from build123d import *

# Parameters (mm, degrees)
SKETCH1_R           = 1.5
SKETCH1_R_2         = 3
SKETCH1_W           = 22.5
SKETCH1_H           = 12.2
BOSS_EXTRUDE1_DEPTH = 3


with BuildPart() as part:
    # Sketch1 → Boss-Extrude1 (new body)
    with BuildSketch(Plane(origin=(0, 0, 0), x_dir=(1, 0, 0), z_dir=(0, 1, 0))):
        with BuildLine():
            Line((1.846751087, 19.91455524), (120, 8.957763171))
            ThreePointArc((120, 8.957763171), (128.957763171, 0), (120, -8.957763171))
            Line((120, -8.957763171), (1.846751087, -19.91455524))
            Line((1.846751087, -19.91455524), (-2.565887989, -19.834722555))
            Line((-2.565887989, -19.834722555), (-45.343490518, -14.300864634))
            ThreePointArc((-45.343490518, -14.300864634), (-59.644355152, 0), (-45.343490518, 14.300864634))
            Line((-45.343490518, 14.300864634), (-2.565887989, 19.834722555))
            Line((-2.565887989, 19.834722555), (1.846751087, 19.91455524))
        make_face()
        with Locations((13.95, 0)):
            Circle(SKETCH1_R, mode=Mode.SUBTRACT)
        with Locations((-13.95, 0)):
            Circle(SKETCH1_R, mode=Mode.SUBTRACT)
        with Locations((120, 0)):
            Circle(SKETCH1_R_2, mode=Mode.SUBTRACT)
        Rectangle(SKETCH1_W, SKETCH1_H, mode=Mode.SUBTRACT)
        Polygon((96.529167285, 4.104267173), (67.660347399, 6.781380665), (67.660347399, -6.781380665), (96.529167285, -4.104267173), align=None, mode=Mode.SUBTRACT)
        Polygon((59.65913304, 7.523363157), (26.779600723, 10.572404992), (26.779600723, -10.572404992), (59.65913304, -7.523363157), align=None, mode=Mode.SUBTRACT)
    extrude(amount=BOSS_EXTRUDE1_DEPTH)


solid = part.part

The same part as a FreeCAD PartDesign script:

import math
import FreeCAD as App
import Part
import Sketcher
from FreeCAD import Vector

doc = App.newDocument("Part")
body = doc.addObject("PartDesign::Body", "Body")

# Sketch on XZ plane
sketch1 = doc.addObject("Sketcher::SketchObject", "Sketch")
body.addObject(sketch1)
sketch1.AttachmentSupport = (doc.XZ_Plane, [""])
sketch1.MapMode = "FlatFace"
sketch1.addGeometry([
    Part.LineSegment(Vector(120, -9, 0), Vector(1.8, -19.9, 0)),  # 0
    Part.LineSegment(Vector(1.8, -19.9, 0), Vector(-2.6, -19.8, 0)),  # 1
    Part.LineSegment(Vector(-2.6, -19.8, 0), Vector(-45.3, -14.3, 0)),  # 2
    Part.ArcOfCircle(Part.Circle(Vector(-45.3, 0, 0), Vector(0, 0, 1), 14.3), math.radians(90), math.radians(270)),  # 3
    Part.LineSegment(Vector(-45.3, 14.3, 0), Vector(-2.6, 19.8, 0)),  # 4
    Part.LineSegment(Vector(-2.6, 19.8, 0), Vector(1.8, 19.9, 0)),  # 5
    Part.LineSegment(Vector(1.8, 19.9, 0), Vector(120, 9, 0)),  # 6
    Part.ArcOfCircle(Part.Circle(Vector(120, 0, 0), Vector(0, 0, 1), 9), math.radians(-90), math.radians(90)),  # 7
    Part.Circle(Vector(120, 0, 0), Vector(0, 0, 1), 3),  # 8
    Part.LineSegment(Vector(96.5, -4.1, 0), Vector(96.5, 4.1, 0)),  # 9
    Part.LineSegment(Vector(96.5, 4.1, 0), Vector(67.7, 6.8, 0)),  # 10
    Part.LineSegment(Vector(67.7, 6.8, 0), Vector(67.7, -6.8, 0)),  # 11
    Part.LineSegment(Vector(67.7, -6.8, 0), Vector(96.5, -4.1, 0)),  # 12
    Part.LineSegment(Vector(59.7, -7.5, 0), Vector(59.7, 7.5, 0)),  # 13
    Part.LineSegment(Vector(59.7, 7.5, 0), Vector(26.8, 10.6, 0)),  # 14
    Part.LineSegment(Vector(26.8, 10.6, 0), Vector(26.8, -10.6, 0)),  # 15
    Part.LineSegment(Vector(26.8, -10.6, 0), Vector(59.7, -7.5, 0)),  # 16
    Part.Circle(Vector(13.9, 0, 0), Vector(0, 0, 1), 1.5),  # 17
    Part.LineSegment(Vector(-11.2, 6.1, 0), Vector(-11.2, -6.1, 0)),  # 18
    Part.LineSegment(Vector(-11.2, -6.1, 0), Vector(11.2, -6.1, 0)),  # 19
    Part.LineSegment(Vector(11.2, -6.1, 0), Vector(11.2, 6.1, 0)),  # 20
    Part.LineSegment(Vector(11.2, 6.1, 0), Vector(-11.2, 6.1, 0)),  # 21
    Part.Circle(Vector(-13.9, 0, 0), Vector(0, 0, 1), 1.5),  # 22
], False)
sketch1.addConstraint([
    Sketcher.Constraint("Coincident", 0, 2, 1, 1),
    Sketcher.Constraint("Coincident", 1, 2, 2, 1),
    Sketcher.Constraint("Coincident", 2, 2, 3, 2),
    Sketcher.Constraint("Coincident", 3, 1, 4, 1),
    Sketcher.Constraint("Coincident", 4, 2, 5, 1),
    Sketcher.Constraint("Coincident", 5, 2, 6, 1),
    Sketcher.Constraint("Coincident", 6, 2, 7, 2),
    Sketcher.Constraint("Coincident", 7, 1, 0, 1),
    Sketcher.Constraint("Coincident", 9, 2, 10, 1),
    Sketcher.Constraint("Coincident", 10, 2, 11, 1),
    Sketcher.Constraint("Coincident", 11, 2, 12, 1),
    Sketcher.Constraint("Coincident", 12, 2, 9, 1),
    Sketcher.Constraint("Coincident", 13, 2, 14, 1),
    Sketcher.Constraint("Coincident", 14, 2, 15, 1),
    Sketcher.Constraint("Coincident", 15, 2, 16, 1),
    Sketcher.Constraint("Coincident", 16, 2, 13, 1),
    Sketcher.Constraint("Coincident", 18, 2, 19, 1),
    Sketcher.Constraint("Coincident", 19, 2, 20, 1),
    Sketcher.Constraint("Coincident", 20, 2, 21, 1),
    Sketcher.Constraint("Coincident", 21, 2, 18, 1),
    Sketcher.Constraint("Vertical", 9),
    Sketcher.Constraint("Vertical", 11),
    Sketcher.Constraint("Vertical", 13),
    Sketcher.Constraint("Vertical", 15),
    Sketcher.Constraint("Vertical", 18),
    Sketcher.Constraint("Horizontal", 19),
    Sketcher.Constraint("Vertical", 20),
    Sketcher.Constraint("Horizontal", 21),
    Sketcher.Constraint("Coincident", 8, 3, 7, 3),
    Sketcher.Constraint("Equal", 17, 22),
    Sketcher.Constraint("Symmetric", 17, 3, 22, 3, -1, 1),
    Sketcher.Constraint("Symmetric", 18, 2, 20, 2, -1, 1),
    Sketcher.Constraint("Symmetric", 2, 2, 3, 1, -1),
    Sketcher.Constraint("Symmetric", 1, 2, 4, 2, -1),
    Sketcher.Constraint("Symmetric", 0, 2, 5, 2, -1),
    Sketcher.Constraint("Symmetric", 6, 2, 7, 1, -1),
    Sketcher.Constraint("PointOnObject", 17, 3, -1),
    Sketcher.Constraint("Parallel", 6, 10),
    Sketcher.Constraint("Parallel", 0, 12),
    Sketcher.Constraint("Parallel", 10, 14),
    Sketcher.Constraint("Parallel", 12, 16),
    Sketcher.Constraint("Vertical", 3, 3, 2, 2),
    Sketcher.Constraint("Vertical", 8, 3, 6, 2),
    Sketcher.Constraint("Diameter", 8, 6.0),
    Sketcher.Constraint("Diameter", 17, 3.0),
    Sketcher.Constraint("DistanceX", 19, 1, 19, 2, 22.5),
    Sketcher.Constraint("DistanceY", 18, 2, 18, 1, 12.2),
    Sketcher.Constraint("DistanceX", -1, 1, 7, 3, 120.0),
    Sketcher.Constraint("DistanceX", 22, 3, 17, 3, 27.9),
    Sketcher.Constraint("Radius", 3, 14.300865),
    Sketcher.Constraint("Radius", 7, 8.957763),
    Sketcher.Constraint("DistanceY", 11, 2, 11, 1, 13.562761),
    Sketcher.Constraint("DistanceY", 15, 2, 15, 1, 21.14481),
    Sketcher.Constraint("DistanceX", -1, 1, 14, 2, 26.779601),
    Sketcher.Constraint("Distance", 1, 4.413361),
    Sketcher.Constraint("DistanceY", 9, 1, 9, 2, 8.208534),
    Sketcher.Constraint("DistanceY", 13, 1, 13, 2, 15.046726),
    Sketcher.Constraint("DistanceX", 3, 3, -1, 1, 45.343491),
    Sketcher.Constraint("DistanceX", -1, 1, 0, 2, 1.846751),
    Sketcher.Constraint("DistanceY", -1, 1, 10, 2, 6.781381),
    Sketcher.Constraint("DistanceX", 1, 2, 0, 2, 4.412639),
    Sketcher.Constraint("DistanceY", 0, 2, 2, 2, 5.613691),
    Sketcher.Constraint("DistanceY", 12, 2, 13, 2, 11.62763),
    Sketcher.Constraint("DistanceX", -1, 1, 9, 2, 96.529167),
])
pad1 = doc.addObject("PartDesign::Pad", "Pad")
body.addObject(pad1)
pad1.Profile = sketch1
pad1.Length = 3
pad1.Reversed = True

doc.recompute()
